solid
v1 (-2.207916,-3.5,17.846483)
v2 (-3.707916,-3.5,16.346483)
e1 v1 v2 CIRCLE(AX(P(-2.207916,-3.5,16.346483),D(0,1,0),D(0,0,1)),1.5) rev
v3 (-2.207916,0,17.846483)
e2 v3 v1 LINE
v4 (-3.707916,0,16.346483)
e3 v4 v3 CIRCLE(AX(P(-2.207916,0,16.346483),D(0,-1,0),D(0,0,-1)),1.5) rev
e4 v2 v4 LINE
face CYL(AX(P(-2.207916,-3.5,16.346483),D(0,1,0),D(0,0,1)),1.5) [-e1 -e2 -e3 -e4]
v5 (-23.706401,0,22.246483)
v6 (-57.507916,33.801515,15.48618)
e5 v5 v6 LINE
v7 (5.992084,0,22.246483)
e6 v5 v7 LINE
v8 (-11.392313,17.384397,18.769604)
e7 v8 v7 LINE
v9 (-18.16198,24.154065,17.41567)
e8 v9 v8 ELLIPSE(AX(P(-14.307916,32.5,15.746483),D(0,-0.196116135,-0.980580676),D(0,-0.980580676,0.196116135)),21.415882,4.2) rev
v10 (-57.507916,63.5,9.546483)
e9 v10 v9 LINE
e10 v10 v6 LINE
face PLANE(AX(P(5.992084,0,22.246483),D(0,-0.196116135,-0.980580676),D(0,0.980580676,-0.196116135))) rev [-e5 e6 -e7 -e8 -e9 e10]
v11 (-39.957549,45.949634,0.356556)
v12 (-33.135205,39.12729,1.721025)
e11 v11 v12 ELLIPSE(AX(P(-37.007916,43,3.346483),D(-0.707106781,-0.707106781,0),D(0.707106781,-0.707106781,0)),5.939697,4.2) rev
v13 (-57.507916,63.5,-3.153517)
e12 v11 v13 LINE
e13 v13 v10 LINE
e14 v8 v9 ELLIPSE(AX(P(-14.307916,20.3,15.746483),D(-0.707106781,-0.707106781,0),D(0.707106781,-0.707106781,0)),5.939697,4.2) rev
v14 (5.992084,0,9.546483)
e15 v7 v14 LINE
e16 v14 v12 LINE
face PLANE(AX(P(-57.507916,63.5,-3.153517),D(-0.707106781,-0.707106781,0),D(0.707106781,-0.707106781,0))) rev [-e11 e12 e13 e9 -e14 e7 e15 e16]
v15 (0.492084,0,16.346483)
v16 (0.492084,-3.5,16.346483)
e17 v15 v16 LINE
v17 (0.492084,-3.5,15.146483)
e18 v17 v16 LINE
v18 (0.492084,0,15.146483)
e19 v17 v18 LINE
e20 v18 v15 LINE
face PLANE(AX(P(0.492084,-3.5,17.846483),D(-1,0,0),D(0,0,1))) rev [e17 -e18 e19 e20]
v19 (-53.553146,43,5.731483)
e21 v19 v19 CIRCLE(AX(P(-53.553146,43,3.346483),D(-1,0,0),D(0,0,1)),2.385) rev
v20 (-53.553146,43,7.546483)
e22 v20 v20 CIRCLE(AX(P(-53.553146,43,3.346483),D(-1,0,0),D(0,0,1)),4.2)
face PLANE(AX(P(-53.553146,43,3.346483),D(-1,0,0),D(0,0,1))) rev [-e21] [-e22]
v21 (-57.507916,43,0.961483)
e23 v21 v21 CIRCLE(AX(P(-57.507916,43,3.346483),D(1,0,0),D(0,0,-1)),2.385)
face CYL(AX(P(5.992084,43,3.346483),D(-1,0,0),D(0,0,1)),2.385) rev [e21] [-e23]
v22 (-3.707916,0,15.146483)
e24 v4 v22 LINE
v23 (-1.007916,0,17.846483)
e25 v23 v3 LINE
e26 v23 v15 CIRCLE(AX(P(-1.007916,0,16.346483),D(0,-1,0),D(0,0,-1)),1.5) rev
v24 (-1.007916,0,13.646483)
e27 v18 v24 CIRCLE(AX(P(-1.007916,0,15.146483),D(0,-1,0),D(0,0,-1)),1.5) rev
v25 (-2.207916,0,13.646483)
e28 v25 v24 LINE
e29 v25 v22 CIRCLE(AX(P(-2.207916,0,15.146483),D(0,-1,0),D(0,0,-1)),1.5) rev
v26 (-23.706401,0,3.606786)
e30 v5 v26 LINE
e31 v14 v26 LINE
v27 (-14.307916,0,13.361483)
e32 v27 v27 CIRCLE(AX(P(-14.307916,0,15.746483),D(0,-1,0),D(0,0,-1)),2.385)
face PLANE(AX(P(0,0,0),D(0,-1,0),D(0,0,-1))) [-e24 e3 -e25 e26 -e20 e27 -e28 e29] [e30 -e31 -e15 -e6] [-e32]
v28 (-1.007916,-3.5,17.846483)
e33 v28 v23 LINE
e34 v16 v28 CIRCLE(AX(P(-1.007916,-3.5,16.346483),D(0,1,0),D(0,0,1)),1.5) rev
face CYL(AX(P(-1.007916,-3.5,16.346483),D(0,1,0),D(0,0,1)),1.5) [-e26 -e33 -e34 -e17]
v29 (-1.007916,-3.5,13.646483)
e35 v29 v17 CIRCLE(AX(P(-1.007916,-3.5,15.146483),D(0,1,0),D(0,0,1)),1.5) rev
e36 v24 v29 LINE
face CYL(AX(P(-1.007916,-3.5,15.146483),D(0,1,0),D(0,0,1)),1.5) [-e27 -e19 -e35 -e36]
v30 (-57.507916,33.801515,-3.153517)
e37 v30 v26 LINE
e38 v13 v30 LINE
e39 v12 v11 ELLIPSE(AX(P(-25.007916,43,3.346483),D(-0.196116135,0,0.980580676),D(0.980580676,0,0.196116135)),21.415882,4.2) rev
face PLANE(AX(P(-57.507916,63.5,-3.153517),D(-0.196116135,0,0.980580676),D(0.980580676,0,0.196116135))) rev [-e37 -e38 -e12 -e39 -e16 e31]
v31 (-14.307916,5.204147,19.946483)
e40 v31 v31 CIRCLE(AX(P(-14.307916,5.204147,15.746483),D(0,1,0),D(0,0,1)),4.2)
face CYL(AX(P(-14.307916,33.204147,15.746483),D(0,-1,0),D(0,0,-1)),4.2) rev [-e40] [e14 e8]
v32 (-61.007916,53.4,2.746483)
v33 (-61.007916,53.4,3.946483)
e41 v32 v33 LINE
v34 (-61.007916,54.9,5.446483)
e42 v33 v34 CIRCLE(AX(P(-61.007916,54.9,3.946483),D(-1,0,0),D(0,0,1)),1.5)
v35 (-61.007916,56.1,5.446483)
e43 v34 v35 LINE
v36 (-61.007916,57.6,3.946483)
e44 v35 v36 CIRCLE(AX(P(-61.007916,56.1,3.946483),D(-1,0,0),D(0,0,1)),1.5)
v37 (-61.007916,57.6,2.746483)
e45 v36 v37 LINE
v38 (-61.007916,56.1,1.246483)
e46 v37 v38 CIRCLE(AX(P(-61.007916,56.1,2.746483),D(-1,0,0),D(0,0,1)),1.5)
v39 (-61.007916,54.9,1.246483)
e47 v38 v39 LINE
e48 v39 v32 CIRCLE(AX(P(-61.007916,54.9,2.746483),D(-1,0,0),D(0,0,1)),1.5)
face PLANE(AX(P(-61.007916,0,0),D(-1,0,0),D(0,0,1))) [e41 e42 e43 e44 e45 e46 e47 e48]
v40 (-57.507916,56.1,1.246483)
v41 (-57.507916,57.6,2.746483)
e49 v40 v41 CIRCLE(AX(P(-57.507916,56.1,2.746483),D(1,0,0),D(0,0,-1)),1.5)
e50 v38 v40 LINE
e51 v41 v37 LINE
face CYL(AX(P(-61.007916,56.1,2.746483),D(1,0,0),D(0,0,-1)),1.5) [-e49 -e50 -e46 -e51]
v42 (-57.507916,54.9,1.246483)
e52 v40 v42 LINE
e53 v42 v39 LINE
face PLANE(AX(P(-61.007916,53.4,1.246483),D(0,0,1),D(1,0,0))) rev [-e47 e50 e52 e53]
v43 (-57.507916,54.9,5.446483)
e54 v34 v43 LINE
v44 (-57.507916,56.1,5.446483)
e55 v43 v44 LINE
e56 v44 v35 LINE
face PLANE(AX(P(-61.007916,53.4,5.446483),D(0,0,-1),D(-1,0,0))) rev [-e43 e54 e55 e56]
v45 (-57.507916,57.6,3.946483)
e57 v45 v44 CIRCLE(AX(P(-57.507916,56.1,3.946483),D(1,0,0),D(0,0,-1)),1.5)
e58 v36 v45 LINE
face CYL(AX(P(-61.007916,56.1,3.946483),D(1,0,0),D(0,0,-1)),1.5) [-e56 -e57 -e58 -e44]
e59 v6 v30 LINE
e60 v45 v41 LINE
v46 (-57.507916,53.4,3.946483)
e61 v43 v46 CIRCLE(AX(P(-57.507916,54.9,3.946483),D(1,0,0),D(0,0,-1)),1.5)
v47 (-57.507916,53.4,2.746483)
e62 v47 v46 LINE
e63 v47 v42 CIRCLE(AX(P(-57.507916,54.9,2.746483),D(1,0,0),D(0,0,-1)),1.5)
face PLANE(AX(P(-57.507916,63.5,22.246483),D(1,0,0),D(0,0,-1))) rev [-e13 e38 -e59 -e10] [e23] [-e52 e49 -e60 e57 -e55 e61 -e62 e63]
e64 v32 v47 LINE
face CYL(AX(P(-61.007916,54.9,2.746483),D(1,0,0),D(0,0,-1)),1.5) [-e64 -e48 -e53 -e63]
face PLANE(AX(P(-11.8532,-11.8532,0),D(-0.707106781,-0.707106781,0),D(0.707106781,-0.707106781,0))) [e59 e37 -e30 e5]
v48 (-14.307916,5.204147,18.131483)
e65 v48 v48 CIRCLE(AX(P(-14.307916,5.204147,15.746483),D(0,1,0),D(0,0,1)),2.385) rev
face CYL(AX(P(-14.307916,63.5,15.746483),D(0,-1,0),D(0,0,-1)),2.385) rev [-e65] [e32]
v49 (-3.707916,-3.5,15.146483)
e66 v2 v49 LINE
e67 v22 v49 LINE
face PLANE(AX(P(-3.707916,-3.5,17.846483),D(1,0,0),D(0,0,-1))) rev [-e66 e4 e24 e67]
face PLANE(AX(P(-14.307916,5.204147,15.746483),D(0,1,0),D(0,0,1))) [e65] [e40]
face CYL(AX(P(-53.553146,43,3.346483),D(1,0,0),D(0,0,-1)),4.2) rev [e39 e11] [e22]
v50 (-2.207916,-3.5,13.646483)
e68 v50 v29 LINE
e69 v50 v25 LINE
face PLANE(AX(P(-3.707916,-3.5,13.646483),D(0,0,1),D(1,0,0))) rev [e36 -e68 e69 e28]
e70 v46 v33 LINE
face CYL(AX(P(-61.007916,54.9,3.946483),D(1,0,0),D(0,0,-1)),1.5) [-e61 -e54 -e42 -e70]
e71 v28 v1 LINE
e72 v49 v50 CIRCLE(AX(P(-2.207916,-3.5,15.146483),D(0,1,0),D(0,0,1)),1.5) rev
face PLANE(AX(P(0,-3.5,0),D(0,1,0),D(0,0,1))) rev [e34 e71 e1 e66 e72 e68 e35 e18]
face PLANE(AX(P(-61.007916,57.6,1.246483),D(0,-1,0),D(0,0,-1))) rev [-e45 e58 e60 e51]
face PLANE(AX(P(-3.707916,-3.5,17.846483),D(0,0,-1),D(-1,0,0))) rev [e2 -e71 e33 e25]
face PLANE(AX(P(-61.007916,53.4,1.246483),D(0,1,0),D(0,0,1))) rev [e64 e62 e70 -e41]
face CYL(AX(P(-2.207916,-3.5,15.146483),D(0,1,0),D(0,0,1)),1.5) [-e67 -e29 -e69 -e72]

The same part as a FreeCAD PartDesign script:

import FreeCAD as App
import Part
import Sketcher
from FreeCAD import Vector
Q = App.Units.Quantity


def edges_at(feature, points):
    """Names of the edges that pass closest to the given points."""
    edges = feature.Shape.Edges
    near = lambda p: min(range(len(edges)), key=lambda i: edges[i].distToShape(Part.Vertex(*p))[0])
    return sorted({f"Edge{near(p) + 1}" for p in points})


def add_polygon(sketch, points):
    """Adds a closed chain of lines whose ends are joined by coincident constraints."""
    first, n = sketch.GeometryCount, len(points)
    for a, b in zip(points, points[1:] + points[:1]):
        sketch.addGeometry(Part.LineSegment(App.Vector(*a, 0), App.Vector(*b, 0)), False)
    for i in range(n):
        sketch.addConstraint(Sketcher.Constraint("Coincident", first + i, 2, first + (i + 1) % n, 1))

doc = App.newDocument("Part")
body = doc.addObject("PartDesign::Body", "Body")

# Sketch on XZ plane
sketch1 = doc.addObject("Sketcher::SketchObject", "Sketch")
body.addObject(sketch1)
sketch1.AttachmentSupport = (doc.XZ_Plane, [""])
sketch1.MapMode = "FlatFace"
add_polygon(sketch1, [(-57.507916, -3.153517), (-57.507916, 22.246483), (5.992084, 22.246483), (5.992084, -3.153517)])  # lines 0-3
sketch1.addConstraint([
    Sketcher.Constraint("Vertical", 0),
    Sketcher.Constraint("Horizontal", 1),
    Sketcher.Constraint("Vertical", 2),
    Sketcher.Constraint("Horizontal", 3),
    Sketcher.Constraint("DistanceX", 1, 1, 1, 2, Q("63.5 mm")),
    Sketcher.Constraint("DistanceY", 0, 1, 0, 2, Q("25.4 mm")),
    Sketcher.Constraint("DistanceX", 0, 2, -1, 1, Q("57.507916 mm")),
    Sketcher.Constraint("DistanceY", -1, 1, 0, 2, Q("22.246483 mm")),
])
pad1 = doc.addObject("PartDesign::Pad", "Pad")
body.addObject(pad1)
pad1.Profile = sketch1
pad1.Length = 63.5
pad1.Reversed = True

# Sketch on XY plane
sketch2 = doc.addObject("Sketcher::SketchObject", "Sketch001")
body.addObject(sketch2)
sketch2.AttachmentSupport = (doc.XY_Plane, [""])
sketch2.MapMode = "FlatFace"
sketch2.AttachmentOffset = App.Placement(Vector(0, 0, 22.246483), App.Rotation())
add_polygon(sketch2, [(-57.507916, 63.5), (5.992084, 0), (5.992084, 63.5)])  # lines 0-2
sketch2.addConstraint([
    Sketcher.Constraint("Vertical", 1),
    Sketcher.Constraint("Horizontal", 2),
    Sketcher.Constraint("PointOnObject", 0, 2, -1),
    Sketcher.Constraint("Equal", 2, 1),
    Sketcher.Constraint("DistanceX", 2, 2, 2, 1, Q("63.5 mm")),
    Sketcher.Constraint("DistanceX", -1, 1, 0, 2, Q("5.992084 mm")),
])
pocket1 = doc.addObject("PartDesign::Pocket", "Pocket")
body.addObject(pocket1)
pocket1.Profile = sketch2
pocket1.Type = "ThroughAll"

# Sketch on XZ plane
sketch3 = doc.addObject("Sketcher::SketchObject", "Sketch002")
body.addObject(sketch3)
sketch3.AttachmentSupport = (doc.XZ_Plane, [""])
sketch3.MapMode = "FlatFace"
add_polygon(sketch3, [(-54.507916, 17.846483), (-54.507916, 13.646483), (-50.307916, 13.646483), (-50.307916, 17.846483)])  # lines 0-3
add_polygon(sketch3, [(-41.807916, 17.846483), (-41.807916, 13.646483), (-37.607916, 13.646483), (-37.607916, 17.846483)])  # lines 4-7
add_polygon(sketch3, [(-29.107916, 17.846483), (-29.107916, 13.646483), (-24.907916, 13.646483), (-24.907916, 17.846483)])  # lines 8-11
add_polygon(sketch3, [(-16.407916, 17.846483), (-16.407916, 13.646483), (-12.207916, 13.646483), (-12.207916, 17.846483)])  # lines 12-15
add_polygon(sketch3, [(-3.707916, 17.846483), (-3.707916, 13.646483), (0.492084, 13.646483), (0.492084, 17.846483)])  # lines 16-19
sketch3.addConstraint([
    Sketcher.Constraint("Vertical", 0),
    Sketcher.Constraint("Horizontal", 1),
    Sketcher.Constraint("Vertical", 2),
    Sketcher.Constraint("Horizontal", 3),
    Sketcher.Constraint("Vertical", 4),
    Sketcher.Constraint("Horizontal", 5),
    Sketcher.Constraint("Vertical", 6),
    Sketcher.Constraint("Horizontal", 7),
    Sketcher.Constraint("Vertical", 8),
    Sketcher.Constraint("Horizontal", 9),
    Sketcher.Constraint("Vertical", 10),
    Sketcher.Constraint("Horizontal", 11),
    Sketcher.Constraint("Vertical", 12),
    Sketcher.Constraint("Horizontal", 13),
    Sketcher.Constraint("Vertical", 14),
    Sketcher.Constraint("Horizontal", 15),
    Sketcher.Constraint("Vertical", 16),
    Sketcher.Constraint("Horizontal", 17),
    Sketcher.Constraint("Vertical", 18),
    Sketcher.Constraint("Horizontal", 19),
    Sketcher.Constraint("Horizontal", 1, 2, 4, 2),
    Sketcher.Constraint("Horizontal", 3, 2, 6, 2),
    Sketcher.Constraint("Horizontal", 5, 2, 8, 2),
    Sketcher.Constraint("Horizontal", 7, 2, 10, 2),
    Sketcher.Constraint("Horizontal", 9, 2, 12, 2),
    Sketcher.Constraint("Horizontal", 11, 2, 14, 2),
    Sketcher.Constraint("Horizontal", 13, 2, 16, 2),
    Sketcher.Constraint("Horizontal", 15, 2, 18, 2),
    Sketcher.Constraint("Equal", 3, 5),
    Sketcher.Constraint("Equal", 7, 9),
    Sketcher.Constraint("Equal", 11, 13),
    Sketcher.Constraint("Equal", 15, 17),
    Sketcher.Constraint("Equal", 19, 0),
    Sketcher.Constraint("DistanceX", 1, 1, 1, 2, Q("4.2 mm")),
    Sketcher.Constraint("DistanceX", 1, 2, 4, 2, Q("8.5 mm")),
    Sketcher.Constraint("DistanceX", 5, 2, 8, 2, Q("8.5 mm")),
    Sketcher.Constraint("DistanceX", 9, 2, 12, 2, Q("8.5 mm")),
    Sketcher.Constraint("DistanceX", 13, 2, 16, 2, Q("8.5 mm")),
    Sketcher.Constraint("DistanceX", 0, 2, -1, 1, Q("54.507916 mm")),
    Sketcher.Constraint("DistanceY", -1, 1, 0, 2, Q("13.646483 mm")),
])
pad2 = doc.addObject("PartDesign::Pad", "Pad001")
body.addObject(pad2)
pad2.Profile = sketch3
pad2.Length = 3.5

# Sketch on YZ plane
sketch4 = doc.addObject("Sketcher::SketchObject", "Sketch003")
body.addObject(sketch4)
sketch4.AttachmentSupport = (doc.YZ_Plane, [""])
sketch4.MapMode = "FlatFace"
sketch4.AttachmentOffset = App.Placement(Vector(0, 0, -57.507916), App.Rotation())
add_polygon(sketch4, [(7.6, 1.246483), (3.4, 1.246483), (3.4, 5.446483), (7.6, 5.446483)])  # lines 0-3
add_polygon(sketch4, [(20.1, 1.246483), (15.9, 1.246483), (15.9, 5.446483), (20.1, 5.446483)])  # lines 4-7
add_polygon(sketch4, [(32.6, 1.246483), (28.4, 1.246483), (28.4, 5.446483), (32.6, 5.446483)])  # lines 8-11
add_polygon(sketch4, [(45.1, 1.246483), (40.9, 1.246483), (40.9, 5.446483), (45.1, 5.446483)])  # lines 12-15
add_polygon(sketch4, [(57.6, 1.246483), (53.4, 1.246483), (53.4, 5.446483), (57.6, 5.446483)])  # lines 16-19
sketch4.addConstraint([
    Sketcher.Constraint("Horizontal", 0),
    Sketcher.Constraint("Vertical", 1),
    Sketcher.Constraint("Horizontal", 2),
    Sketcher.Constraint("Vertical", 3),
    Sketcher.Constraint("Horizontal", 4),
    Sketcher.Constraint("Vertical", 5),
    Sketcher.Constraint("Horizontal", 6),
    Sketcher.Constraint("Vertical", 7),
    Sketcher.Constraint("Horizontal", 8),
    Sketcher.Constraint("Vertical", 9),
    Sketcher.Constraint("Horizontal", 10),
    Sketcher.Constraint("Vertical", 11),
    Sketcher.Constraint("Horizontal", 12),
    Sketcher.Constraint("Vertical", 13),
    Sketcher.Constraint("Horizontal", 14),
    Sketcher.Constraint("Vertical", 15),
    Sketcher.Constraint("Horizontal", 16),
    Sketcher.Constraint("Vertical", 17),
    Sketcher.Constraint("Horizontal", 18),
    Sketcher.Constraint("Vertical", 19),
    Sketcher.Constraint("Horizontal", 3, 2, 4, 2),
    Sketcher.Constraint("Horizontal", 2, 2, 5, 2),
    Sketcher.Constraint("Horizontal", 7, 2, 8, 2),
    Sketcher.Constraint("Horizontal", 6, 2, 9, 2),
    Sketcher.Constraint("Horizontal", 11, 2, 12, 2),
    Sketcher.Constraint("Horizontal", 10, 2, 13, 2),
    Sketcher.Constraint("Horizontal", 15, 2, 16, 2),
    Sketcher.Constraint("Horizontal", 14, 2, 17, 2),
    Sketcher.Constraint("Equal", 2, 4),
    Sketcher.Constraint("Equal", 6, 8),
    Sketcher.Constraint("Equal", 10, 12),
    Sketcher.Constraint("Equal", 14, 16),
    Sketcher.Constraint("Equal", 18, 1),
    Sketcher.Constraint("DistanceX", 0, 2, 0, 1, Q("4.2 mm")),
    Sketcher.Constraint("DistanceX", -1, 1, 0, 2, Q("3.4 mm")),
    Sketcher.Constraint("DistanceX", -1, 1, 4, 2, Q("15.9 mm")),
    Sketcher.Constraint("DistanceX", -1, 1, 8, 2, Q("28.4 mm")),
    Sketcher.Constraint("DistanceX", -1, 1, 12, 2, Q("40.9 mm")),
    Sketcher.Constraint("DistanceX", -1, 1, 16, 2, Q("53.4 mm")),
    Sketcher.Constraint("DistanceY", -1, 1, 0, 2, Q("1.246483 mm")),
])
pad3 = doc.addObject("PartDesign::Pad", "Pad002")
body.addObject(pad3)
pad3.Profile = sketch4
pad3.Length = 3.5
pad3.Reversed = True
doc.recompute()

fillet = doc.addObject("PartDesign::Fillet", "Fillet")
body.addObject(fillet)
fillet.Base = (pad3, edges_at(pad3, [
    (-59.258, 28.4, 1.246),
    (-59.258, 28.4, 5.446),
    (-59.258, 32.6, 5.446),
    (-59.258, 32.6, 1.246),
    (-59.258, 40.9, 1.246),
    (-59.258, 40.9, 5.446),
    (-59.258, 45.1, 5.446),
    (-59.258, 45.1, 1.246),
    (-59.258, 53.4, 1.246),
    (-59.258, 53.4, 5.446),
    (-59.258, 57.6, 5.446),
    (-59.258, 57.6, 1.246),
    (-54.508, -1.75, 17.846),
    (-54.508, -1.75, 13.646),
    (-50.308, -1.75, 13.646),
    (-50.308, -1.75, 17.846),
    (-37.608, -1.75, 17.846),
    (-41.808, -1.75, 17.846),
    (-41.808, -1.75, 13.646),
    (-37.608, -1.75, 13.646),
    (-24.908, -1.75, 17.846),
    (-29.108, -1.75, 17.846),
    (-29.108, -1.75, 13.646),
    (-24.908, -1.75, 13.646),
    (-12.208, -1.75, 17.846),
    (-16.408, -1.75, 17.846),
    (-16.408, -1.75, 13.646),
    (-12.208, -1.75, 13.646),
    (0.492, -1.75, 17.846),
    (-3.708, -1.75, 17.846),
    (-3.708, -1.75, 13.646),
    (0.492, -1.75, 13.646),
    (-59.258, 7.6, 1.246),
    (-59.258, 3.4, 1.246),
    (-59.258, 3.4, 5.446),
    (-59.258, 7.6, 5.446),
    (-59.258, 15.9, 1.246),
    (-59.258, 15.9, 5.446),
    (-59.258, 20.1, 5.446),
    (-59.258, 20.1, 1.246),
]))
fillet.Radius = 1.5

# Sketch on YZ plane
sketch5 = doc.addObject("Sketcher::SketchObject", "Sketch004")
body.addObject(sketch5)
sketch5.AttachmentSupport = (doc.YZ_Plane, [""])
sketch5.MapMode = "FlatFace"
sketch5.AttachmentOffset = App.Placement(Vector(0, 0, -57.507916), App.Rotation())
add_polygon(sketch5, [(63.5, 9.546483), (0, 22.246483), (63.5, 22.246483)])  # lines 0-2
sketch5.addConstraint([
    Sketcher.Constraint("Horizontal", 1),
    Sketcher.Constraint("Vertical", 2),
    Sketcher.Constraint("PointOnObject", 0, 2, -2),
    Sketcher.Constraint("DistanceX", 1, 1, 1, 2, Q("63.5 mm")),
    Sketcher.Constraint("DistanceY", 2, 2, 2, 1, Q("12.7 mm")),
    Sketcher.Constraint("DistanceY", -1, 1, 0, 2, Q("22.246483 mm")),
])
pocket2 = doc.addObject("PartDesign::Pocket", "Pocket001")
body.addObject(pocket2)
pocket2.Profile = sketch5
pocket2.Type = "ThroughAll"
pocket2.Reversed = True

# Sketch on XZ plane
sketch6 = doc.addObject("Sketcher::SketchObject", "Sketch005")
body.addObject(sketch6)
sketch6.AttachmentSupport = (doc.XZ_Plane, [""])
sketch6.MapMode = "FlatFace"
add_polygon(sketch6, [(5.992084, 9.546483), (-57.507916, -3.153517), (5.992084, -3.153517)])  # lines 0-2
sketch6.addConstraint([
    Sketcher.Constraint("Horizontal", 1),
    Sketcher.Constraint("Vertical", 2),
    Sketcher.Constraint("DistanceX", 1, 1, 1, 2, Q("63.5 mm")),
    Sketcher.Constraint("DistanceY", 2, 1, 2, 2, Q("12.7 mm")),
    Sketcher.Constraint("DistanceX", 0, 2, -1, 1, Q("57.507916 mm")),
    Sketcher.Constraint("DistanceY", 0, 2, -1, 1, Q("3.153517 mm")),
])
pocket3 = doc.addObject("PartDesign::Pocket", "Pocket002")
body.addObject(pocket3)
pocket3.Profile = sketch6
pocket3.Type = "ThroughAll"

# Sketch on XZ plane
sketch7 = doc.addObject("Sketcher::SketchObject", "Sketch006")
body.addObject(sketch7)
sketch7.AttachmentSupport = (doc.XZ_Plane, [""])
sketch7.MapMode = "FlatFace"
sketch7.AttachmentOffset = App.Placement(Vector(0, 0, 3.5), App.Rotation())
sketch7.addGeometry(Part.Circle(Vector(-14.307916, 15.746483, 0), Vector(0, 0, 1), 2.385), False)
sketch7.addConstraint([
    Sketcher.Constraint("Diameter", 0, Q("4.77 mm")),
    Sketcher.Constraint("DistanceX", 0, 3, -1, 1, Q("14.307916 mm")),
    Sketcher.Constraint("DistanceY", -1, 1, 0, 3, Q("15.746483 mm")),
])
pocket4 = doc.addObject("PartDesign::Pocket", "Pocket003")
body.addObject(pocket4)
pocket4.Profile = sketch7
pocket4.Type = "ThroughAll"

# Sketch on XZ plane
sketch8 = doc.addObject("Sketcher::SketchObject", "Sketch007")
body.addObject(sketch8)
sketch8.AttachmentSupport = (doc.XZ_Plane, [""])
sketch8.MapMode = "FlatFace"
sketch8.AttachmentOffset = App.Placement(Vector(0, 0, -23.204147), App.Rotation())
sketch8.addGeometry(Part.Circle(Vector(-14.307916, 15.746483, 0), Vector(0, 0, 1), 4.2), False)
sketch8.addConstraint([
    Sketcher.Constraint("Diameter", 0, Q("8.4 mm")),
    Sketcher.Constraint("DistanceX", 0, 3, -1, 1, Q("14.307916 mm")),
    Sketcher.Constraint("DistanceY", -1, 1, 0, 3, Q("15.746483 mm")),
])
pocket5 = doc.addObject("PartDesign::Pocket", "Pocket004")
body.addObject(pocket5)
pocket5.Profile = sketch8
pocket5.Type = "TwoLengths"
pocket5.Length = 10
pocket5.Length2 = 18

# Sketch on YZ plane
sketch9 = doc.addObject("Sketcher::SketchObject", "Sketch008")
body.addObject(sketch9)
sketch9.AttachmentSupport = (doc.YZ_Plane, [""])
sketch9.MapMode = "FlatFace"
sketch9.AttachmentOffset = App.Placement(Vector(0, 0, -61.007916), App.Rotation())
sketch9.addGeometry(Part.Circle(Vector(43, 3.346483, 0), Vector(0, 0, 1), 2.385), False)
sketch9.addConstraint([
    Sketcher.Constraint("Diameter", 0, Q("4.77 mm")),
    Sketcher.Constraint("DistanceX", -1, 1, 0, 3, Q("43 mm")),
    Sketcher.Constraint("DistanceY", -1, 1, 0, 3, Q("3.346483 mm")),
])
pocket6 = doc.addObject("PartDesign::Pocket", "Pocket005")
body.addObject(pocket6)
pocket6.Profile = sketch9
pocket6.Type = "ThroughAll"
pocket6.Reversed = True

# Sketch on YZ plane
sketch10 = doc.addObject("Sketcher::SketchObject", "Sketch009")
body.addObject(sketch10)
sketch10.AttachmentSupport = (doc.YZ_Plane, [""])
sketch10.MapMode = "FlatFace"
sketch10.AttachmentOffset = App.Placement(Vector(0, 0, -33.553146), App.Rotation())
sketch10.addGeometry(Part.Circle(Vector(43, 3.346483, 0), Vector(0, 0, 1), 4.2), False)
sketch10.addConstraint([
    Sketcher.Constraint("Diameter", 0, Q("8.4 mm")),
    Sketcher.Constraint("DistanceX", -1, 1, 0, 3, Q("43 mm")),
    Sketcher.Constraint("DistanceY", -1, 1, 0, 3, Q("3.346483 mm")),
])
pocket7 = doc.addObject("PartDesign::Pocket", "Pocket006")
body.addObject(pocket7)
pocket7.Profile = sketch10
pocket7.Type = "TwoLengths"
pocket7.Length = 20
pocket7.Length2 = 10

# Sketch on an angled plane
sketch11 = doc.addObject("Sketcher::SketchObject", "Sketch010")
body.addObject(sketch11)
sketch11.Placement = App.Placement(Vector(-11.8532, -11.8532, 0), App.Rotation(Vector(0.707106781, -0.707106781, 0), Vector(0, 0, -0.999999999), Vector(0.707106781, 0.707106781, 0), "ZXY"))
add_polygon(sketch11, [(-77.806307, 3.901248), (-77.806307, -22.807552), (-5.957494, -22.807552), (-5.957494, 3.901248)])  # lines 0-3
sketch11.addConstraint([
    Sketcher.Constraint("Vertical", 0),
    Sketcher.Constraint("Horizontal", 1),
    Sketcher.Constraint("Vertical", 2),
    Sketcher.Constraint("Horizontal", 3),
    Sketcher.Constraint("DistanceY", 0, 2, 0, 1, Q("26.7088 mm")),
    Sketcher.Constraint("DistanceX", 1, 1, 1, 2, Q("71.848813 mm")),
    Sketcher.Constraint("DistanceX", 0, 2, -1, 1, Q("77.806307 mm")),
    Sketcher.Constraint("DistanceY", 0, 2, -1, 1, Q("22.807552 mm")),
])
pocket8 = doc.addObject("PartDesign::Pocket", "Pocket007")
body.addObject(pocket8)
pocket8.Profile = sketch11
pocket8.Length = 30

doc.recompute()
